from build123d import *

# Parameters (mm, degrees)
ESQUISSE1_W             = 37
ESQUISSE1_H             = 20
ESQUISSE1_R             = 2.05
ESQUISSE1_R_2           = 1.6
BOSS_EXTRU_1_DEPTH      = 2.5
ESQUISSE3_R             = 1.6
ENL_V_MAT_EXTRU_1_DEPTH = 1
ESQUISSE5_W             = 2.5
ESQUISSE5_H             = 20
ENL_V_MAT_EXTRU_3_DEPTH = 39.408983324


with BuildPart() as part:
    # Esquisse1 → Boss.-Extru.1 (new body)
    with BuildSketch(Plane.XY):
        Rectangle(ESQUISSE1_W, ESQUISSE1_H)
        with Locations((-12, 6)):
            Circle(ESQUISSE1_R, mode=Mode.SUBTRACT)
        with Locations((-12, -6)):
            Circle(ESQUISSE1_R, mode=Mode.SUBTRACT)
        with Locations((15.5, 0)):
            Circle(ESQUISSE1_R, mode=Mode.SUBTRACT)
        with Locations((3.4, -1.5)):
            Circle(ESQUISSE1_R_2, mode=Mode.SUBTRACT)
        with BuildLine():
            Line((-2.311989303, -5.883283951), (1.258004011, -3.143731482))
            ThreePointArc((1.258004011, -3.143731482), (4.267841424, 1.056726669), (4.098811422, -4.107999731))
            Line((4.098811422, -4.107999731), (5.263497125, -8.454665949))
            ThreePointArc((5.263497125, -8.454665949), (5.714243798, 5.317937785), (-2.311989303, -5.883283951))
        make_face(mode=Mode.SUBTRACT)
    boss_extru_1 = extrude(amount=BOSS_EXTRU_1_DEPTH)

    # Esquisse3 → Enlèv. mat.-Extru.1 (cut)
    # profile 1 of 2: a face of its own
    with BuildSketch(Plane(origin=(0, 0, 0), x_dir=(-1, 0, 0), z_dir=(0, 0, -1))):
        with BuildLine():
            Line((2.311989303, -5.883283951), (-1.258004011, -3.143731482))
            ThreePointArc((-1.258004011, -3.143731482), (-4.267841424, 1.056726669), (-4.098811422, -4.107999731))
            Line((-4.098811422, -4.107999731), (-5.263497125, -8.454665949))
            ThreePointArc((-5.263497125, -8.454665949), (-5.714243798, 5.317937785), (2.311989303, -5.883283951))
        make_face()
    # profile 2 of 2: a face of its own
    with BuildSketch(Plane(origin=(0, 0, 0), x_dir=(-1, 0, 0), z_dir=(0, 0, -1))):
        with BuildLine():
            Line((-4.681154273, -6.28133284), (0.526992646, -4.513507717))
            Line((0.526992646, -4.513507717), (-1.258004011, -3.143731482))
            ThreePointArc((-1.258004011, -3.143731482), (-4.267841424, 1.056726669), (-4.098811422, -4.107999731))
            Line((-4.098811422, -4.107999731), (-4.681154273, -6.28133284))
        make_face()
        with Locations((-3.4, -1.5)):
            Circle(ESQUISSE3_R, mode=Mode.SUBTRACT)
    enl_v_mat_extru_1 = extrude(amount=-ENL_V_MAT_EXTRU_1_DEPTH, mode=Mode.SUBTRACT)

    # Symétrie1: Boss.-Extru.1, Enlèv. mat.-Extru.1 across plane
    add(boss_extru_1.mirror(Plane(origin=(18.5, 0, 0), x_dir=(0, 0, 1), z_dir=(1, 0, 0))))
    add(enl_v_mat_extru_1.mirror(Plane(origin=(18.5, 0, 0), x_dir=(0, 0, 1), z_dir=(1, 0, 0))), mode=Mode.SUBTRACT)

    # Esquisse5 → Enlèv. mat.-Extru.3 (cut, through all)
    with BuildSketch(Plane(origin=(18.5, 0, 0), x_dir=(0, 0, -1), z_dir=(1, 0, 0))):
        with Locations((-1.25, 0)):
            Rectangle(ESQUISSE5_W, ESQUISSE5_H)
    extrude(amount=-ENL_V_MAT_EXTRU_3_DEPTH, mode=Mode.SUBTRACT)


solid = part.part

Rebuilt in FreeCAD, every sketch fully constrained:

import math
import FreeCAD as App
import Part
import Sketcher

V = App.Vector
Q = App.Units.Quantity

doc = App.newDocument("Part")
body = doc.addObject("PartDesign::Body", "Body")

# Sketch on XY plane
sketch1 = doc.addObject("Sketcher::SketchObject", "Sketch")
body.addObject(sketch1)
sketch1.AttachmentSupport = (doc.XY_Plane, [""])
sketch1.MapMode = "FlatFace"
sketch1.addGeometry([
    Part.LineSegment(V(-18.5, 10, 0), V(-18.5, -10, 0)),  # 0
    Part.LineSegment(V(-18.5, -10, 0), V(18.5, -10, 0)),  # 1
    Part.LineSegment(V(18.5, -10, 0), V(18.5, 10, 0)),  # 2
    Part.LineSegment(V(18.5, 10, 0), V(-18.5, 10, 0)),  # 3
    Part.Circle(V(-12, -6, 0), V(0, 0, 1), 2),  # 4
    Part.Circle(V(3.4, -1.5, 0), V(0, 0, 1), 1.6),  # 5
    Part.LineSegment(V(1.3, -3.1, 0), V(-2.3, -5.9, 0)),  # 6
    Part.ArcOfCircle(Part.Circle(V(3.4, -1.5, 0), V(0, 0, 1), 7.2), math.radians(-75), math.radians(218)),  # 7
    Part.LineSegment(V(5.3, -8.5, 0), V(4.1, -4.1, 0)),  # 8
    Part.ArcOfCircle(Part.Circle(V(3.4, -1.5, 0), V(0, 0, 1), 2.7), math.radians(-75), math.radians(218)),  # 9
    Part.Circle(V(-12, 6, 0), V(0, 0, 1), 2),  # 10
    Part.Circle(V(15.5, 0, 0), V(0, 0, 1), 2),  # 11
], False)
sketch1.addConstraint([
    Sketcher.Constraint("Coincident", 0, 2, 1, 1),
    Sketcher.Constraint("Coincident", 1, 2, 2, 1),
    Sketcher.Constraint("Coincident", 2, 2, 3, 1),
    Sketcher.Constraint("Coincident", 3, 2, 0, 1),
    Sketcher.Constraint("Coincident", 6, 2, 7, 2),
    Sketcher.Constraint("Coincident", 7, 1, 8, 1),
    Sketcher.Constraint("Coincident", 8, 2, 9, 1),
    Sketcher.Constraint("Coincident", 9, 2, 6, 1),
    Sketcher.Constraint("Vertical", 0),
    Sketcher.Constraint("Horizontal", 1),
    Sketcher.Constraint("Vertical", 2),
    Sketcher.Constraint("Horizontal", 3),
    Sketcher.Constraint("Coincident", 7, 3, 5, 3),
    Sketcher.Constraint("Coincident", 9, 3, 5, 3),
    Sketcher.Constraint("Equal", 4, 10),
    Sketcher.Constraint("Equal", 10, 11),
    Sketcher.Constraint("Symmetric", 0, 2, 2, 2, -1, 1),
    Sketcher.Constraint("Symmetric", 4, 3, 10, 3, -1),
    Sketcher.Constraint("PointOnObject", 11, 3, -1),
    Sketcher.Constraint("Diameter", 4, 4.1),
    Sketcher.Constraint("Diameter", 5, 3.2),
    Sketcher.Constraint("Radius", 7, 7.2),
    Sketcher.Constraint("Radius", 9, 2.7),
    Sketcher.Constraint("DistanceX", 1, 1, 1, 2, 37.0),
    Sketcher.Constraint("DistanceY", 0, 2, 0, 1, 20.0),
    Sketcher.Constraint("Angle", 8, Q("105 deg")),
    Sketcher.Constraint("DistanceX", 4, 3, -1, 1, 12.0),
    Sketcher.Constraint("DistanceY", 4, 3, -1, 1, 6.0),
    Sketcher.Constraint("DistanceX", 11, 3, 1, 2, 3.0),
    Sketcher.Constraint("DistanceX", -1, 1, 5, 3, 3.4),
    Sketcher.Constraint("DistanceY", 5, 3, -1, 1, 1.5),
    Sketcher.Constraint("DistanceY", 8, 2, -1, 1, 4.108),
    Sketcher.Constraint("DistanceX", 6, 2, 8, 2, 6.410801),
    Sketcher.Constraint("DistanceY", 9, 2, -1, 1, 3.143731),
])
pad1 = doc.addObject("PartDesign::Pad", "Pad")
body.addObject(pad1)
pad1.Profile = sketch1
pad1.Length = 2.5

# Sketch on XY plane
sketch2 = doc.addObject("Sketcher::SketchObject", "Sketch001")
body.addObject(sketch2)
sketch2.AttachmentSupport = (doc.XY_Plane, [""])
sketch2.MapMode = "FlatFace"
sketch2.addGeometry([
    Part.LineSegment(V(-0.5, -4.5, 0), V(-2.3, -5.9, 0)),  # 0
    Part.ArcOfCircle(Part.Circle(V(3.4, -1.5, 0), V(0, 0, 1), 7.2), math.radians(-75), math.radians(218)),  # 1
    Part.LineSegment(V(5.3, -8.5, 0), V(4.7, -6.3, 0)),  # 2
    Part.LineSegment(V(4.7, -6.3, 0), V(-0.5, -4.5, 0)),  # 3
    Part.Circle(V(3.4, -1.5, 0), V(0, 0, 1), 1.6),  # 4
], False)
sketch2.addConstraint([
    Sketcher.Constraint("Coincident", 0, 2, 1, 2),
    Sketcher.Constraint("Coincident", 1, 1, 2, 1),
    Sketcher.Constraint("Coincident", 2, 2, 3, 1),
    Sketcher.Constraint("Coincident", 3, 2, 0, 1),
    Sketcher.Constraint("Coincident", 4, 3, 1, 3),
    Sketcher.Constraint("Equal", 0, 2),
    Sketcher.Constraint("Diameter", 4, 3.2),
    Sketcher.Constraint("Radius", 1, 7.2),
    Sketcher.Constraint("Angle", 2, Q("105 deg")),
    Sketcher.Constraint("Distance", 3, 5.5),
    Sketcher.Constraint("DistanceX", -1, 1, 1, 3, 3.4),
    Sketcher.Constraint("DistanceY", 1, 3, -1, 1, 1.5),
    Sketcher.Constraint("Distance", 0, 2.25),
    Sketcher.Constraint("DistanceX", 0, 2, -1, 1, 2.311989),
    Sketcher.Constraint("DistanceY", 1, 1, 0, 2, 2.571382),
])
pocket1 = doc.addObject("PartDesign::Pocket", "Pocket")
body.addObject(pocket1)
pocket1.Profile = sketch2
pocket1.Length = 1
pocket1.Reversed = True
doc.recompute()

datumplane = doc.addObject("PartDesign::Plane", "DatumPlane")
body.addObject(datumplane)
datumplane.AttachmentSupport = (doc.YZ_Plane, [""])
datumplane.MapMode = "FlatFace"
datumplane.AttachmentOffset = App.Placement(V(0, 0, 18.5), App.Rotation())
mirrored = doc.addObject("PartDesign::Mirrored", "Mirrored")
body.addObject(mirrored)
mirrored.Originals = [pad1, pocket1]
mirrored.MirrorPlane = (datumplane, [""])
body.Tip = mirrored

# Sketch on YZ plane
sketch3 = doc.addObject("Sketcher::SketchObject", "Sketch002")
body.addObject(sketch3)
sketch3.AttachmentSupport = (doc.YZ_Plane, [""])
sketch3.MapMode = "FlatFace"
sketch3.AttachmentOffset = App.Placement(V(0, 0, 18.5), App.Rotation())
sketch3.addGeometry([
    Part.LineSegment(V(10, 2.5, 0), V(-10, 2.5, 0)),
    Part.LineSegment(V(-10, 2.5, 0), V(-10, 0, 0)),
    Part.LineSegment(V(-10, 0, 0), V(10, 0, 0)),
    Part.LineSegment(V(10, 0, 0), V(10, 2.5, 0)),
], False)
sketch3.addConstraint([
    Sketcher.Constraint("Coincident", 0, 2, 1, 1),
    Sketcher.Constraint("Coincident", 1, 2, 2, 1),
    Sketcher.Constraint("Coincident", 2, 2, 3, 1),
    Sketcher.Constraint("Coincident", 3, 2, 0, 1),
    Sketcher.Constraint("Horizontal", 0),
    Sketcher.Constraint("Vertical", 1),
    Sketcher.Constraint("Horizontal", 2),
    Sketcher.Constraint("Vertical", 3),
    Sketcher.Constraint("Symmetric", 1, 2, 2, 2, -1, 1),
    Sketcher.Constraint("DistanceX", 0, 2, 0, 1, 20.0),
    Sketcher.Constraint("DistanceY", 1, 2, 1, 1, 2.5),
])
pocket2 = doc.addObject("PartDesign::Pocket", "Pocket001")
body.addObject(pocket2)
pocket2.Profile = sketch3
pocket2.Type = "ThroughAll"

doc.recompute()
